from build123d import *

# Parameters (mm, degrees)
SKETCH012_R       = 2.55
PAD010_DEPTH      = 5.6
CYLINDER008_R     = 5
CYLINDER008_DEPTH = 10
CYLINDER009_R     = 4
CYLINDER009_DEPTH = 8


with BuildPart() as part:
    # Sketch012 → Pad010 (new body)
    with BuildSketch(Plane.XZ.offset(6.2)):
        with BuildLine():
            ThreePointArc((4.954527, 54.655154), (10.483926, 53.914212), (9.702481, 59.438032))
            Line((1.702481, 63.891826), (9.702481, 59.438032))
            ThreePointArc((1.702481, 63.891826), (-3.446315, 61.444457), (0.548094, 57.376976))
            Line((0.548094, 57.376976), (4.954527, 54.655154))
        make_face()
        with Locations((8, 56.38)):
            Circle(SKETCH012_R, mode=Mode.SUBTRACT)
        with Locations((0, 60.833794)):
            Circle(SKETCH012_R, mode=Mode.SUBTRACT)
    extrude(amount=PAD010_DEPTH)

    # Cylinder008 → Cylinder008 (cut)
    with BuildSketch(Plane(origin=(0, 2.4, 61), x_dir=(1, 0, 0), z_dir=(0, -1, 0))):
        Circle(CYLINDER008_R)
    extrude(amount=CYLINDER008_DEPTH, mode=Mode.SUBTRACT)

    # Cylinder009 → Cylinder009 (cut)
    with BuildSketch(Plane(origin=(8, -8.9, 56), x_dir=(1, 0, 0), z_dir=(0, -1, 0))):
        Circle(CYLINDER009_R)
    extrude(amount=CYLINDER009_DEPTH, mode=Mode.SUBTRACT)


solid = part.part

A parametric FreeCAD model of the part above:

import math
import FreeCAD as App
import Part
import Sketcher

doc = App.newDocument("Part")
body = doc.addObject("PartDesign::Body", "Body")

# Sketch on XZ plane
sketch1 = body.newObject("Sketcher::SketchObject", "Sketch")
sketch1.AttachmentSupport = (doc.getObject("XZ_Plane"), [""])
sketch1.MapMode = "FlatFace"
sketch1.AttachmentOffset = App.Placement(App.Vector(0, 0, 6.2), App.Rotation())
sketch1.addGeometry([
    Part.ArcOfCircle(Part.Circle(App.Vector(8, 56.4, 0), App.Vector(0, 0, 1), 3.5), math.radians(-150), math.radians(61)),  # 0
    Part.LineSegment(App.Vector(9.7, 59.4, 0), App.Vector(1.7, 63.9, 0)),  # 1
    Part.ArcOfCircle(Part.Circle(App.Vector(0, 60.8, 0), App.Vector(0, 0, 1), 3.5), math.radians(61), math.radians(279)),  # 2
    Part.LineSegment(App.Vector(0.5, 57.4, 0), App.Vector(5, 54.7, 0)),  # 3
    Part.Circle(App.Vector(8, 56.4, 0), App.Vector(0, 0, 1), 2.5),  # 4
    Part.Circle(App.Vector(0, 60.8, 0), App.Vector(0, 0, 1), 2.5),  # 5
], False)
sketch1.addConstraint([
    Sketcher.Constraint("Tangent", 0, 2, 1, 1),
    Sketcher.Constraint("Tangent", 1, 2, 2, 1),
    Sketcher.Constraint("Coincident", 2, 2, 3, 1),
    Sketcher.Constraint("Coincident", 3, 2, 0, 1),
    Sketcher.Constraint("Coincident", 4, 3, 0, 3),
    Sketcher.Constraint("Coincident", 5, 3, 2, 3),
    Sketcher.Constraint("Equal", 0, 2),
    Sketcher.Constraint("Equal", 4, 5),
    Sketcher.Constraint("PointOnObject", 2, 3, -2),
    Sketcher.Constraint("Diameter", 4, 5.1),
    Sketcher.Constraint("Radius", 0, 3.5),
    Sketcher.Constraint("DistanceX", -1, 1, 0, 3, 8.0),
    Sketcher.Constraint("DistanceY", -1, 1, 0, 3, 56.38),
    Sketcher.Constraint("DistanceX", -1, 1, 0, 2, 9.702481),
    Sketcher.Constraint("DistanceY", 2, 2, 2, 3, 3.456818),
    Sketcher.Constraint("DistanceY", 3, 2, 0, 2, 4.782878),
])
pad1 = body.newObject("PartDesign::Pad", "Pad")
pad1.Profile = sketch1
pad1.Length = 5.6

# Sketch on XZ plane
sketch2 = body.newObject("Sketcher::SketchObject", "Sketch001")
sketch2.AttachmentSupport = (doc.getObject("XZ_Plane"), [""])
sketch2.MapMode = "FlatFace"
sketch2.AttachmentOffset = App.Placement(App.Vector(0, 0, -2.4), App.Rotation())
sketch2.addGeometry(Part.Circle(App.Vector(0, 61, 0), App.Vector(0, 0, 1), 5), False)
sketch2.addConstraint([
    Sketcher.Constraint("PointOnObject", 0, 3, -2),
    Sketcher.Constraint("Diameter", 0, 10.0),
    Sketcher.Constraint("DistanceY", -1, 1, 0, 3, 61.0),
])
pocket1 = body.newObject("PartDesign::Pocket", "Pocket")
pocket1.Profile = sketch2
pocket1.Length = 10
pocket1.Reversed = True

# Sketch on XZ plane
sketch3 = body.newObject("Sketcher::SketchObject", "Sketch002")
sketch3.AttachmentSupport = (doc.getObject("XZ_Plane"), [""])
sketch3.MapMode = "FlatFace"
sketch3.AttachmentOffset = App.Placement(App.Vector(0, 0, 8.9), App.Rotation())
sketch3.addGeometry(Part.Circle(App.Vector(8, 56, 0), App.Vector(0, 0, 1), 4), False)
sketch3.addConstraint([
    Sketcher.Constraint("Diameter", 0, 8.0),
    Sketcher.Constraint("DistanceX", -1, 1, 0, 3, 8.0),
    Sketcher.Constraint("DistanceY", -1, 1, 0, 3, 56.0),
])
pocket2 = body.newObject("PartDesign::Pocket", "Pocket001")
pocket2.Profile = sketch3
pocket2.Length = 8
pocket2.Reversed = True

doc.recompute()
